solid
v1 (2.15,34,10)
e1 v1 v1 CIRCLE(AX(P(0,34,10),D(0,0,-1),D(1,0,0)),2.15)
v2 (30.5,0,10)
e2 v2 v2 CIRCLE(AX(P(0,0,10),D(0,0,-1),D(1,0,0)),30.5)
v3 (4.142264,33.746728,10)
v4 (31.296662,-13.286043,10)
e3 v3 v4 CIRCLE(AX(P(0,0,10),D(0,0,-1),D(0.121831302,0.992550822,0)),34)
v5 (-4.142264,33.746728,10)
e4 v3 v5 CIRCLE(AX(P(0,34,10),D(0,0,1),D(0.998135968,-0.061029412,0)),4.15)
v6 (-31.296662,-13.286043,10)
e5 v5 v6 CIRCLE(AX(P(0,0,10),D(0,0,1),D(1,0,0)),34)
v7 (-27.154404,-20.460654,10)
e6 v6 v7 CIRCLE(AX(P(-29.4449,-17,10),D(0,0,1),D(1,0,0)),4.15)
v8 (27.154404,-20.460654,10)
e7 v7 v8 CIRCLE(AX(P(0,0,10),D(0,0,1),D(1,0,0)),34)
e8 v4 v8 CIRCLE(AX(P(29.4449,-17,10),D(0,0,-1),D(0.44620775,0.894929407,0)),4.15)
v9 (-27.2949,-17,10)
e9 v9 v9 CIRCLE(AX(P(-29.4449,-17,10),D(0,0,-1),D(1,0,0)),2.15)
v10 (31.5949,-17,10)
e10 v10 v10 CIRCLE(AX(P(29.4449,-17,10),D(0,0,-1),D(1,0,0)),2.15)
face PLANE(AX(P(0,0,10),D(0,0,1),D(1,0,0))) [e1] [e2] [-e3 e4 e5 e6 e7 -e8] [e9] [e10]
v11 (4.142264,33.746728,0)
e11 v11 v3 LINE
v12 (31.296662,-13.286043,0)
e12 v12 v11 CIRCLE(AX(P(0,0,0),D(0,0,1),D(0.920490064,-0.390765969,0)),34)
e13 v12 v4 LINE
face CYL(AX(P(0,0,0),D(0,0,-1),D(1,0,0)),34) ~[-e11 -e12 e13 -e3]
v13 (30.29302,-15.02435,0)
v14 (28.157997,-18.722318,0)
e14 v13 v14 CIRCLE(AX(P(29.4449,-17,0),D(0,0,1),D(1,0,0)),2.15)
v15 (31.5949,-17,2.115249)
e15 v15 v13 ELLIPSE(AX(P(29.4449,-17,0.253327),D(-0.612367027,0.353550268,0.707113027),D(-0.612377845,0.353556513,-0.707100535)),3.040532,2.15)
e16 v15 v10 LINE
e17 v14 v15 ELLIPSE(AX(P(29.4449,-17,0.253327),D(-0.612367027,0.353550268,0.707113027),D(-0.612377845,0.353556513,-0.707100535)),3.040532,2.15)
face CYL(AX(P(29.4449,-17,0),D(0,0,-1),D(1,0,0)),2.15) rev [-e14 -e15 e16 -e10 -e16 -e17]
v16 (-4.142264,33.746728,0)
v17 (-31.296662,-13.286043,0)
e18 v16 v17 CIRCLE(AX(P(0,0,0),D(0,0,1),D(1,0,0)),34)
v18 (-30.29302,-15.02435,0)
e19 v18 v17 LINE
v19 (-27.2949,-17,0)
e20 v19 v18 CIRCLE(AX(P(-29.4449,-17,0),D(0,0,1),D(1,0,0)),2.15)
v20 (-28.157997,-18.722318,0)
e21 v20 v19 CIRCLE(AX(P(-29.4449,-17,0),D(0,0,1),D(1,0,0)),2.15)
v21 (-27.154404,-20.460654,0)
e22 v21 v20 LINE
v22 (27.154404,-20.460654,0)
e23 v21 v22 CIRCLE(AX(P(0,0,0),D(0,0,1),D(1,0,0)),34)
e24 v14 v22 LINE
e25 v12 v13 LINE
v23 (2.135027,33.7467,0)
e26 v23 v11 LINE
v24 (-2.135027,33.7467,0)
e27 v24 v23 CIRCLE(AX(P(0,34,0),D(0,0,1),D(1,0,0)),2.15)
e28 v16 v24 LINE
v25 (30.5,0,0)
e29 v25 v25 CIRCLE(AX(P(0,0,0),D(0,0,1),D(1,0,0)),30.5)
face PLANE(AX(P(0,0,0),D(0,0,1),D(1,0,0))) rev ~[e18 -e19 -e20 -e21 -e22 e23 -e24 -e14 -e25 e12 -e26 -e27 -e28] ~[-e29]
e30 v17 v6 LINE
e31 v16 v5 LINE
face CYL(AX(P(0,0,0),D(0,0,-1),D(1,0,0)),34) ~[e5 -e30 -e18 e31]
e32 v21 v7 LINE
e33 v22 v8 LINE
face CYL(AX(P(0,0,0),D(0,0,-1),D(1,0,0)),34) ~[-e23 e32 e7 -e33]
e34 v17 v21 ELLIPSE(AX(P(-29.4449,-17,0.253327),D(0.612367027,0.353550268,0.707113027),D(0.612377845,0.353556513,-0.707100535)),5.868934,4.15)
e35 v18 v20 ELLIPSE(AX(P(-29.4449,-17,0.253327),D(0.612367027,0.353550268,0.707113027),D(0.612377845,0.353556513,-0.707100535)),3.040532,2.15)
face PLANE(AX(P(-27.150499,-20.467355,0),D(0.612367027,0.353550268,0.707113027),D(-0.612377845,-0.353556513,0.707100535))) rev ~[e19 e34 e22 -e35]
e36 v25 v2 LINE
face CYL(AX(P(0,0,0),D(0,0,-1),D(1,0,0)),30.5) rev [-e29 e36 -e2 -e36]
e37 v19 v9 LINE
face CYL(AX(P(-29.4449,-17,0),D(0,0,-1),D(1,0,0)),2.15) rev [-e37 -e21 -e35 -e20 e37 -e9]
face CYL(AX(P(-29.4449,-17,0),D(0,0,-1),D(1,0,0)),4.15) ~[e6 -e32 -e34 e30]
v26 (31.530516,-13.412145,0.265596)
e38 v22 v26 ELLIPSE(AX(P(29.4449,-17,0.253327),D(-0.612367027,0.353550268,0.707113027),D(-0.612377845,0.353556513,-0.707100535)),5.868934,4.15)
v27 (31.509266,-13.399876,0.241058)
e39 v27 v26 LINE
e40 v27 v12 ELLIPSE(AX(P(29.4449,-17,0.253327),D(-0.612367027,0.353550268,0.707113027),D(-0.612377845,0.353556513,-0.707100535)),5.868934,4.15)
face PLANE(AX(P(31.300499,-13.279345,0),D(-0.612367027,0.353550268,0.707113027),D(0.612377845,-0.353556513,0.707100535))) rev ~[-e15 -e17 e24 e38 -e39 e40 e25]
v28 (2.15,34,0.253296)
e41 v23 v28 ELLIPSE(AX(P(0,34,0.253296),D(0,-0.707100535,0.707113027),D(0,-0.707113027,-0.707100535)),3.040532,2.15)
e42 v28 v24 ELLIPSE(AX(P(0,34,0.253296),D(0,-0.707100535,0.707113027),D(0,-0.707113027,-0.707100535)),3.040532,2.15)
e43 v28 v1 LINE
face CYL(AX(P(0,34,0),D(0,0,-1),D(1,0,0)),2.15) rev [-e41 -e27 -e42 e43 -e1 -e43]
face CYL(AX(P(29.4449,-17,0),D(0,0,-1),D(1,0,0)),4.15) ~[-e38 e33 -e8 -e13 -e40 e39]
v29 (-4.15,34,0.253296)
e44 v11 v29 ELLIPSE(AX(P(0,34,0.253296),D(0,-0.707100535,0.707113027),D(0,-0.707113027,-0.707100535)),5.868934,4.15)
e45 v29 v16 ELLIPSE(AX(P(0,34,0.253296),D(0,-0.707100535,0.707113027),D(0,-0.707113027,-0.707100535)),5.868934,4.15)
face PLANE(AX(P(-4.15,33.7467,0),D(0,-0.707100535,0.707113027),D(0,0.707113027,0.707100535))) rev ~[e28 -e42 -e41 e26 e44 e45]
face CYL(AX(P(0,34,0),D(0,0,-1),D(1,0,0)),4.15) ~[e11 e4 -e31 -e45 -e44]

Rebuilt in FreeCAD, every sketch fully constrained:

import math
import FreeCAD as App
import Part
import Sketcher

V = App.Vector

doc = App.newDocument("Part")
body = doc.addObject("PartDesign::Body", "Body")

# Sketch on XY plane
sketch1 = body.newObject("Sketcher::SketchObject", "Sketch")
sketch1.AttachmentSupport = (doc.getObject("XY_Plane"), [""])
sketch1.MapMode = "FlatFace"
sketch1.addGeometry([
    Part.ArcOfCircle(Part.Circle(V(0, 0, 0), V(0, 0, 1), 34), math.radians(-23.002169), math.radians(83.002196)),  # 0
    Part.ArcOfCircle(Part.Circle(V(0, 34, 0), V(0, 0, 1), 4.15), math.radians(-3.498902), math.radians(183.498902)),  # 1
    Part.ArcOfCircle(Part.Circle(V(0, 0, 0), V(0, 0, 1), 34), math.radians(96.997804), math.radians(203.002169)),  # 2
    Part.ArcOfCircle(Part.Circle(V(-29.4449, -17, 0), V(0, 0, 1), 4.15), math.radians(116.500636), math.radians(303.499303)),  # 3
    Part.ArcOfCircle(Part.Circle(V(0, 0, 0), V(0, 0, 1), 34), math.radians(-143.00223), math.radians(-36.99777)),  # 4
    Part.ArcOfCircle(Part.Circle(V(29.4449, -17, 0), V(0, 0, 1), 4.15), math.radians(-123.499303), math.radians(63.499364)),  # 5
    Part.Circle(V(0, 0, 0), V(0, 0, 1), 30.5),  # 6
    Part.Circle(V(29.4449, -17, 0), V(0, 0, 1), 2.15),  # 7
    Part.Circle(V(0, 34, 0), V(0, 0, 1), 2.15),  # 8
    Part.Circle(V(-29.4449, -17, 0), V(0, 0, 1), 2.15),  # 9
], False)
sketch1.addConstraint([
    Sketcher.Constraint("Coincident", 0, 2, 1, 1),
    Sketcher.Constraint("Coincident", 1, 2, 2, 1),
    Sketcher.Constraint("Coincident", 2, 2, 3, 1),
    Sketcher.Constraint("Coincident", 3, 2, 4, 1),
    Sketcher.Constraint("Coincident", 4, 2, 5, 1),
    Sketcher.Constraint("Coincident", 5, 2, 0, 1),
    Sketcher.Constraint("Coincident", 0, 3, -1, 1),
    Sketcher.Constraint("Coincident", 2, 3, -1, 1),
    Sketcher.Constraint("Coincident", 4, 3, -1, 1),
    Sketcher.Constraint("Coincident", 6, 3, -1, 1),
    Sketcher.Constraint("Coincident", 7, 3, 5, 3),
    Sketcher.Constraint("Coincident", 8, 3, 1, 3),
    Sketcher.Constraint("Coincident", 9, 3, 3, 3),
    Sketcher.Constraint("Equal", 0, 2),
    Sketcher.Constraint("Equal", 1, 3),
    Sketcher.Constraint("Equal", 2, 4),
    Sketcher.Constraint("Equal", 3, 5),
    Sketcher.Constraint("Equal", 7, 8),
    Sketcher.Constraint("Equal", 8, 9),
    Sketcher.Constraint("Symmetric", 3, 3, 5, 3, -2),
    Sketcher.Constraint("PointOnObject", 1, 3, -2),
    Sketcher.Constraint("Diameter", 6, 61.0),
    Sketcher.Constraint("Radius", 0, 34.0),
    Sketcher.Constraint("Diameter", 7, 4.3),
    Sketcher.Constraint("Radius", 1, 4.15),
    Sketcher.Constraint("DistanceY", -1, 1, 1, 3, 34.0),
    Sketcher.Constraint("DistanceY", 3, 3, -1, 1, 17.0),
    Sketcher.Constraint("DistanceX", 3, 3, -1, 1, 29.445),
])
pad1 = body.newObject("PartDesign::Pad", "Pad")
pad1.Profile = sketch1
pad1.Length = 10

# Sketch on YZ plane
sketch2 = body.newObject("Sketcher::SketchObject", "Sketch001")
sketch2.AttachmentSupport = (doc.getObject("YZ_Plane"), [""])
sketch2.MapMode = "FlatFace"
sketch2.AttachmentOffset = App.Placement(V(0, 0, -4.15), App.Rotation())
sketch2.addGeometry([
    Part.LineSegment(V(39.4074, 0, 0), V(33.7467, 0, 0)),
    Part.LineSegment(V(33.7467, 0, 0), V(39.4074, 5.6606, 0)),
    Part.LineSegment(V(39.4074, 5.6606, 0), V(39.4074, 0, 0)),
], False)
sketch2.addConstraint([
    Sketcher.Constraint("Coincident", 0, 2, 1, 1),
    Sketcher.Constraint("Coincident", 1, 2, 2, 1),
    Sketcher.Constraint("Coincident", 2, 2, 0, 1),
    Sketcher.Constraint("Horizontal", 0),
    Sketcher.Constraint("Vertical", 2),
    Sketcher.Constraint("PointOnObject", 0, 2, -1),
    Sketcher.Constraint("Equal", 0, 2),
    Sketcher.Constraint("DistanceX", 0, 2, 0, 1, 5.6607),
    Sketcher.Constraint("DistanceX", -1, 1, 0, 2, 33.7467),
])
pocket1 = body.newObject("PartDesign::Pocket", "Pocket")
pocket1.Profile = sketch2
pocket1.Length = 15
pocket1.Reversed = True
doc.recompute()

polarpattern = body.newObject("PartDesign::PolarPattern", "PolarPattern")
polarpattern.Originals = [pocket1]
polarpattern.Axis = (doc.getObject("Z_Axis"), [""])
polarpattern.Angle = 360
polarpattern.Occurrences = 3
body.Tip = polarpattern

doc.recompute()
